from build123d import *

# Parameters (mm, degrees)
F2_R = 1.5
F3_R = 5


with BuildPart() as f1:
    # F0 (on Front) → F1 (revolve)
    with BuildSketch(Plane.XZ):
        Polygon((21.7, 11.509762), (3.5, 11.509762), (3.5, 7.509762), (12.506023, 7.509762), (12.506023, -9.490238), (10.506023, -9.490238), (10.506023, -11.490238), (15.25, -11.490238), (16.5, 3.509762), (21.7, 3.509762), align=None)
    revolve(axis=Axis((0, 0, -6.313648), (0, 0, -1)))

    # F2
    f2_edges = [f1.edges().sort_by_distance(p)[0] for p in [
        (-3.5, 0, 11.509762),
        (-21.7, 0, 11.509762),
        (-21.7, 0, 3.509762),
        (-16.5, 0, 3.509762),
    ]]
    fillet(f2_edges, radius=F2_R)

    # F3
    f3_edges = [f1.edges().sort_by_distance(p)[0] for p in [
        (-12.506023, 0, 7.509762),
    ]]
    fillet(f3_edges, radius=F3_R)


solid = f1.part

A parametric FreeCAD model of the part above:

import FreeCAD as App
import Part
import Sketcher


def edges_at(feature, points):
    """Names of the edges that pass closest to the given points."""
    edges = feature.Shape.Edges
    near = lambda p: min(range(len(edges)), key=lambda i: edges[i].distToShape(Part.Vertex(*p))[0])
    return sorted({f"Edge{near(p) + 1}" for p in points})


def add_polygon(sketch, points):
    """Adds a closed chain of lines whose ends are joined by coincident constraints."""
    first, n = sketch.GeometryCount, len(points)
    for a, b in zip(points, points[1:] + points[:1]):
        sketch.addGeometry(Part.LineSegment(App.Vector(*a, 0), App.Vector(*b, 0)), False)
    for i in range(n):
        sketch.addConstraint(Sketcher.Constraint("Coincident", first + i, 2, first + (i + 1) % n, 1))

doc = App.newDocument("Part")
params = doc.addObject("Spreadsheet::Sheet", "Params")
for row, (alias, value) in enumerate([
    ("sketch1_width", "2 mm"),
    ("sketch1_height", "4 mm"),
    ("sketch1_height2", "17 mm"),
    ("sketch1_height3", "8 mm"),
    ("sketch1_width2", "18.2 mm"),
    ("revolution_angle", "360 deg"),
    ("fillet_radius", "1.5 mm"),
    ("fillet2_radius", "5 mm"),
], start=1):
    params.set(f"A{row}", alias)
    params.set(f"B{row}", "=" + value)
    params.setAlias(f"B{row}", alias)

body = doc.addObject("PartDesign::Body", "Body")

# Sketch on XZ plane
sketch1 = doc.addObject("Sketcher::SketchObject", "Sketch")
body.addObject(sketch1)
sketch1.AttachmentSupport = (doc.XZ_Plane, [""])
sketch1.MapMode = "FlatFace"
add_polygon(sketch1, [(21.7, 11.5), (3.5, 11.5), (3.5, 7.5), (12.5, 7.5), (12.5, -9.5), (10.5, -9.5), (10.5, -11.5), (15.2, -11.5), (16.5, 3.5), (21.7, 3.5)])  # lines 0-9
sketch1.addConstraint([
    Sketcher.Constraint("Horizontal", 0),
    Sketcher.Constraint("Vertical", 1),
    Sketcher.Constraint("Horizontal", 2),
    Sketcher.Constraint("Vertical", 3),
    Sketcher.Constraint("Horizontal", 4),
    Sketcher.Constraint("Vertical", 5),
    Sketcher.Constraint("Horizontal", 6),
    Sketcher.Constraint("Horizontal", 8),
    Sketcher.Constraint("Vertical", 9),
    Sketcher.Constraint("Equal", 4, 5),
    Sketcher.Constraint("DistanceX", 4, 2, 4, 1, 2.0),
    Sketcher.Constraint("DistanceY", 1, 2, 1, 1, 4.0),
    Sketcher.Constraint("DistanceY", 3, 2, 3, 1, 17.0),
    Sketcher.Constraint("DistanceY", 9, 1, 9, 2, 8.0),
    Sketcher.Constraint("DistanceX", 0, 2, 0, 1, 18.2),
    Sketcher.Constraint("DistanceX", 8, 1, 8, 2, 5.2),
    Sketcher.Constraint("DistanceX", -1, 1, 0, 2, 3.5),
    Sketcher.Constraint("DistanceX", -1, 1, 6, 2, 15.25),
    Sketcher.Constraint("DistanceX", 2, 1, 2, 2, 9.006023),
    Sketcher.Constraint("DistanceY", -1, 1, 7, 2, 3.509762),
])
sketch1.setExpression("Constraints[20]", "Params.sketch1_width")
sketch1.setExpression("Constraints[21]", "Params.sketch1_height")
sketch1.setExpression("Constraints[22]", "Params.sketch1_height2")
sketch1.setExpression("Constraints[23]", "Params.sketch1_height3")
sketch1.setExpression("Constraints[24]", "Params.sketch1_width2")
revolution = doc.addObject("PartDesign::Revolution", "Revolution")
body.addObject(revolution)
revolution.Profile = sketch1
revolution.ReferenceAxis = (sketch1, ["V_Axis"])
revolution.setExpression("Angle", "Params.revolution_angle")
doc.recompute()

fillet = doc.addObject("PartDesign::Fillet", "Fillet")
body.addObject(fillet)
fillet.Base = (revolution, edges_at(revolution, [
    (-3.5, 0, 11.51),
    (-21.7, 0, 11.51),
    (-21.7, 0, 3.51),
    (-16.5, 0, 3.51),
]))
fillet.setExpression("Radius", "Params.fillet_radius")
doc.recompute()

fillet2 = doc.addObject("PartDesign::Fillet", "Fillet001")
body.addObject(fillet2)
fillet2.Base = (fillet, edges_at(fillet, [(-12.506, 0, 7.51)]))
fillet2.setExpression("Radius", "Params.fillet2_radius")

doc.recompute()
